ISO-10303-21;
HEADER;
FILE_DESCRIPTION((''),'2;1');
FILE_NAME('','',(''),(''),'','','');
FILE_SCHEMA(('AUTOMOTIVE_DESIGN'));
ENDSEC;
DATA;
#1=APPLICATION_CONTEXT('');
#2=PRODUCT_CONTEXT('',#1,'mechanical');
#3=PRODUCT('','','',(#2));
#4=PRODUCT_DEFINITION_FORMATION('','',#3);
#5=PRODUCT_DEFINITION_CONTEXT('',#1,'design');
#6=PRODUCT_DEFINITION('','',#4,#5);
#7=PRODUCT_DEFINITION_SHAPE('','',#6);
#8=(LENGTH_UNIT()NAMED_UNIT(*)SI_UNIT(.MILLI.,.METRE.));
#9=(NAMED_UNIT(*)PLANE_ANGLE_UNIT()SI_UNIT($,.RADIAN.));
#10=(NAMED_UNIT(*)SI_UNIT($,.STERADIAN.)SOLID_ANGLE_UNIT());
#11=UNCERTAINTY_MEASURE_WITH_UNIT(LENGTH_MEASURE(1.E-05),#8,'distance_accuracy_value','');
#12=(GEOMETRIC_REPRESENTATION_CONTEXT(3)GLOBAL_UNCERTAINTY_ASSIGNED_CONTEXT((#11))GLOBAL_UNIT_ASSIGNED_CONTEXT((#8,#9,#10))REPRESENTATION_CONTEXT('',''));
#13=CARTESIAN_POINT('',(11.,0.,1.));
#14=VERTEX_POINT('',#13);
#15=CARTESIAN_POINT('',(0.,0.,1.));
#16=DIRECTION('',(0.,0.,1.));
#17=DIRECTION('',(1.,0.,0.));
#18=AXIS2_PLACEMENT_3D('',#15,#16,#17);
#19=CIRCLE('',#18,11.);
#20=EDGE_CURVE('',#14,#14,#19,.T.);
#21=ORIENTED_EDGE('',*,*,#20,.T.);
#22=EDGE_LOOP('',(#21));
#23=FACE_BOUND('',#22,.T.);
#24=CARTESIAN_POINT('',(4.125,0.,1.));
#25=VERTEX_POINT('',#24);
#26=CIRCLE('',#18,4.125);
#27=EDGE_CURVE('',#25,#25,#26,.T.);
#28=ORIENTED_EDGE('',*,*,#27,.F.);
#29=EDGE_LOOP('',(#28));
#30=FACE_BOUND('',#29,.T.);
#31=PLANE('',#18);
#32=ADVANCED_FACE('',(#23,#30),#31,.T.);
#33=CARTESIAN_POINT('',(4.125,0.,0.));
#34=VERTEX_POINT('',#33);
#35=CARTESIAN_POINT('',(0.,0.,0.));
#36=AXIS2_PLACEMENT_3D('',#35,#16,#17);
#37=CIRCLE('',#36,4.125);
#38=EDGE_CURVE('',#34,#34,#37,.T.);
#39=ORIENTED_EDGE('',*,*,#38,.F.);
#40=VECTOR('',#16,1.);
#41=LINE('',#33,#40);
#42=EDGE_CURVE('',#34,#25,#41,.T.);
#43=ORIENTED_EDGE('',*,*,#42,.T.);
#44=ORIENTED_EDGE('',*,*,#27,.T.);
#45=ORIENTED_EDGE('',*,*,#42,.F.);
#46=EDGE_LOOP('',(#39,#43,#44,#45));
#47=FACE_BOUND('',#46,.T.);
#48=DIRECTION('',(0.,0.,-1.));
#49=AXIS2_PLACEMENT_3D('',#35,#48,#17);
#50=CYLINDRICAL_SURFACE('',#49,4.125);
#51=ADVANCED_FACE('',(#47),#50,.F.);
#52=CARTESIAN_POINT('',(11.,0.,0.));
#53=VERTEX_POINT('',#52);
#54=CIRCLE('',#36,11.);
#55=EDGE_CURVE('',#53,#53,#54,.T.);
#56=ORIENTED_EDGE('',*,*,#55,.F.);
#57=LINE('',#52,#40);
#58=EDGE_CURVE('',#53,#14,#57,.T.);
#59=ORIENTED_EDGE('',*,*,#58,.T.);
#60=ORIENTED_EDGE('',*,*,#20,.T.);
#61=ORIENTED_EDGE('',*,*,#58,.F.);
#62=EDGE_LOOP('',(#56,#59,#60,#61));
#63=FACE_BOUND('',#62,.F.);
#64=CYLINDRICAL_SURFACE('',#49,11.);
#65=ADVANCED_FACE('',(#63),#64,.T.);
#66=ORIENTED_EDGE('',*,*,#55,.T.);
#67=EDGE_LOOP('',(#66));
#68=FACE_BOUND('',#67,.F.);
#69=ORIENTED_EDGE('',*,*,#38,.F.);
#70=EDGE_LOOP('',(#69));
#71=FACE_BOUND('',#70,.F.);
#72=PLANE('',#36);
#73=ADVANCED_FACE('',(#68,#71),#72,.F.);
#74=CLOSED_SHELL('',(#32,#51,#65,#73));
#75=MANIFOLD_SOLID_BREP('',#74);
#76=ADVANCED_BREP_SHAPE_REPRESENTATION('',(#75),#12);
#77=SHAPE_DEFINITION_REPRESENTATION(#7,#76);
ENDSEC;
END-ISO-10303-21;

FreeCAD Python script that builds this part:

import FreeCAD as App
import Part
import Sketcher

V = App.Vector
Q = App.Units.Quantity

doc = App.newDocument("Part")
body = doc.addObject("PartDesign::Body", "Body")

sketch1 = doc.addObject("Sketcher::SketchObject", "Sketch")
body.addObject(sketch1)
sketch1.AttachmentSupport = (doc.XY_Plane, [""])
sketch1.MapMode = "FlatFace"
sketch1.addGeometry([
    Part.Circle(V(0, 0, 0), V(0, 0, 1), 11),
    Part.Circle(V(0, 0, 0), V(0, 0, 1), 4.1),
], False)
sketch1.addConstraint([
    Sketcher.Constraint("Coincident", 0, 3, -1, 1),
    Sketcher.Constraint("Coincident", 1, 3, -1, 1),
    Sketcher.Constraint("Diameter", 0, Q("22 mm")),
    Sketcher.Constraint("Diameter", 1, Q("8.25 mm")),
])
pad1 = doc.addObject("PartDesign::Pad", "Pad")
body.addObject(pad1)
pad1.Profile = sketch1
pad1.Length = 1

doc.recompute()
